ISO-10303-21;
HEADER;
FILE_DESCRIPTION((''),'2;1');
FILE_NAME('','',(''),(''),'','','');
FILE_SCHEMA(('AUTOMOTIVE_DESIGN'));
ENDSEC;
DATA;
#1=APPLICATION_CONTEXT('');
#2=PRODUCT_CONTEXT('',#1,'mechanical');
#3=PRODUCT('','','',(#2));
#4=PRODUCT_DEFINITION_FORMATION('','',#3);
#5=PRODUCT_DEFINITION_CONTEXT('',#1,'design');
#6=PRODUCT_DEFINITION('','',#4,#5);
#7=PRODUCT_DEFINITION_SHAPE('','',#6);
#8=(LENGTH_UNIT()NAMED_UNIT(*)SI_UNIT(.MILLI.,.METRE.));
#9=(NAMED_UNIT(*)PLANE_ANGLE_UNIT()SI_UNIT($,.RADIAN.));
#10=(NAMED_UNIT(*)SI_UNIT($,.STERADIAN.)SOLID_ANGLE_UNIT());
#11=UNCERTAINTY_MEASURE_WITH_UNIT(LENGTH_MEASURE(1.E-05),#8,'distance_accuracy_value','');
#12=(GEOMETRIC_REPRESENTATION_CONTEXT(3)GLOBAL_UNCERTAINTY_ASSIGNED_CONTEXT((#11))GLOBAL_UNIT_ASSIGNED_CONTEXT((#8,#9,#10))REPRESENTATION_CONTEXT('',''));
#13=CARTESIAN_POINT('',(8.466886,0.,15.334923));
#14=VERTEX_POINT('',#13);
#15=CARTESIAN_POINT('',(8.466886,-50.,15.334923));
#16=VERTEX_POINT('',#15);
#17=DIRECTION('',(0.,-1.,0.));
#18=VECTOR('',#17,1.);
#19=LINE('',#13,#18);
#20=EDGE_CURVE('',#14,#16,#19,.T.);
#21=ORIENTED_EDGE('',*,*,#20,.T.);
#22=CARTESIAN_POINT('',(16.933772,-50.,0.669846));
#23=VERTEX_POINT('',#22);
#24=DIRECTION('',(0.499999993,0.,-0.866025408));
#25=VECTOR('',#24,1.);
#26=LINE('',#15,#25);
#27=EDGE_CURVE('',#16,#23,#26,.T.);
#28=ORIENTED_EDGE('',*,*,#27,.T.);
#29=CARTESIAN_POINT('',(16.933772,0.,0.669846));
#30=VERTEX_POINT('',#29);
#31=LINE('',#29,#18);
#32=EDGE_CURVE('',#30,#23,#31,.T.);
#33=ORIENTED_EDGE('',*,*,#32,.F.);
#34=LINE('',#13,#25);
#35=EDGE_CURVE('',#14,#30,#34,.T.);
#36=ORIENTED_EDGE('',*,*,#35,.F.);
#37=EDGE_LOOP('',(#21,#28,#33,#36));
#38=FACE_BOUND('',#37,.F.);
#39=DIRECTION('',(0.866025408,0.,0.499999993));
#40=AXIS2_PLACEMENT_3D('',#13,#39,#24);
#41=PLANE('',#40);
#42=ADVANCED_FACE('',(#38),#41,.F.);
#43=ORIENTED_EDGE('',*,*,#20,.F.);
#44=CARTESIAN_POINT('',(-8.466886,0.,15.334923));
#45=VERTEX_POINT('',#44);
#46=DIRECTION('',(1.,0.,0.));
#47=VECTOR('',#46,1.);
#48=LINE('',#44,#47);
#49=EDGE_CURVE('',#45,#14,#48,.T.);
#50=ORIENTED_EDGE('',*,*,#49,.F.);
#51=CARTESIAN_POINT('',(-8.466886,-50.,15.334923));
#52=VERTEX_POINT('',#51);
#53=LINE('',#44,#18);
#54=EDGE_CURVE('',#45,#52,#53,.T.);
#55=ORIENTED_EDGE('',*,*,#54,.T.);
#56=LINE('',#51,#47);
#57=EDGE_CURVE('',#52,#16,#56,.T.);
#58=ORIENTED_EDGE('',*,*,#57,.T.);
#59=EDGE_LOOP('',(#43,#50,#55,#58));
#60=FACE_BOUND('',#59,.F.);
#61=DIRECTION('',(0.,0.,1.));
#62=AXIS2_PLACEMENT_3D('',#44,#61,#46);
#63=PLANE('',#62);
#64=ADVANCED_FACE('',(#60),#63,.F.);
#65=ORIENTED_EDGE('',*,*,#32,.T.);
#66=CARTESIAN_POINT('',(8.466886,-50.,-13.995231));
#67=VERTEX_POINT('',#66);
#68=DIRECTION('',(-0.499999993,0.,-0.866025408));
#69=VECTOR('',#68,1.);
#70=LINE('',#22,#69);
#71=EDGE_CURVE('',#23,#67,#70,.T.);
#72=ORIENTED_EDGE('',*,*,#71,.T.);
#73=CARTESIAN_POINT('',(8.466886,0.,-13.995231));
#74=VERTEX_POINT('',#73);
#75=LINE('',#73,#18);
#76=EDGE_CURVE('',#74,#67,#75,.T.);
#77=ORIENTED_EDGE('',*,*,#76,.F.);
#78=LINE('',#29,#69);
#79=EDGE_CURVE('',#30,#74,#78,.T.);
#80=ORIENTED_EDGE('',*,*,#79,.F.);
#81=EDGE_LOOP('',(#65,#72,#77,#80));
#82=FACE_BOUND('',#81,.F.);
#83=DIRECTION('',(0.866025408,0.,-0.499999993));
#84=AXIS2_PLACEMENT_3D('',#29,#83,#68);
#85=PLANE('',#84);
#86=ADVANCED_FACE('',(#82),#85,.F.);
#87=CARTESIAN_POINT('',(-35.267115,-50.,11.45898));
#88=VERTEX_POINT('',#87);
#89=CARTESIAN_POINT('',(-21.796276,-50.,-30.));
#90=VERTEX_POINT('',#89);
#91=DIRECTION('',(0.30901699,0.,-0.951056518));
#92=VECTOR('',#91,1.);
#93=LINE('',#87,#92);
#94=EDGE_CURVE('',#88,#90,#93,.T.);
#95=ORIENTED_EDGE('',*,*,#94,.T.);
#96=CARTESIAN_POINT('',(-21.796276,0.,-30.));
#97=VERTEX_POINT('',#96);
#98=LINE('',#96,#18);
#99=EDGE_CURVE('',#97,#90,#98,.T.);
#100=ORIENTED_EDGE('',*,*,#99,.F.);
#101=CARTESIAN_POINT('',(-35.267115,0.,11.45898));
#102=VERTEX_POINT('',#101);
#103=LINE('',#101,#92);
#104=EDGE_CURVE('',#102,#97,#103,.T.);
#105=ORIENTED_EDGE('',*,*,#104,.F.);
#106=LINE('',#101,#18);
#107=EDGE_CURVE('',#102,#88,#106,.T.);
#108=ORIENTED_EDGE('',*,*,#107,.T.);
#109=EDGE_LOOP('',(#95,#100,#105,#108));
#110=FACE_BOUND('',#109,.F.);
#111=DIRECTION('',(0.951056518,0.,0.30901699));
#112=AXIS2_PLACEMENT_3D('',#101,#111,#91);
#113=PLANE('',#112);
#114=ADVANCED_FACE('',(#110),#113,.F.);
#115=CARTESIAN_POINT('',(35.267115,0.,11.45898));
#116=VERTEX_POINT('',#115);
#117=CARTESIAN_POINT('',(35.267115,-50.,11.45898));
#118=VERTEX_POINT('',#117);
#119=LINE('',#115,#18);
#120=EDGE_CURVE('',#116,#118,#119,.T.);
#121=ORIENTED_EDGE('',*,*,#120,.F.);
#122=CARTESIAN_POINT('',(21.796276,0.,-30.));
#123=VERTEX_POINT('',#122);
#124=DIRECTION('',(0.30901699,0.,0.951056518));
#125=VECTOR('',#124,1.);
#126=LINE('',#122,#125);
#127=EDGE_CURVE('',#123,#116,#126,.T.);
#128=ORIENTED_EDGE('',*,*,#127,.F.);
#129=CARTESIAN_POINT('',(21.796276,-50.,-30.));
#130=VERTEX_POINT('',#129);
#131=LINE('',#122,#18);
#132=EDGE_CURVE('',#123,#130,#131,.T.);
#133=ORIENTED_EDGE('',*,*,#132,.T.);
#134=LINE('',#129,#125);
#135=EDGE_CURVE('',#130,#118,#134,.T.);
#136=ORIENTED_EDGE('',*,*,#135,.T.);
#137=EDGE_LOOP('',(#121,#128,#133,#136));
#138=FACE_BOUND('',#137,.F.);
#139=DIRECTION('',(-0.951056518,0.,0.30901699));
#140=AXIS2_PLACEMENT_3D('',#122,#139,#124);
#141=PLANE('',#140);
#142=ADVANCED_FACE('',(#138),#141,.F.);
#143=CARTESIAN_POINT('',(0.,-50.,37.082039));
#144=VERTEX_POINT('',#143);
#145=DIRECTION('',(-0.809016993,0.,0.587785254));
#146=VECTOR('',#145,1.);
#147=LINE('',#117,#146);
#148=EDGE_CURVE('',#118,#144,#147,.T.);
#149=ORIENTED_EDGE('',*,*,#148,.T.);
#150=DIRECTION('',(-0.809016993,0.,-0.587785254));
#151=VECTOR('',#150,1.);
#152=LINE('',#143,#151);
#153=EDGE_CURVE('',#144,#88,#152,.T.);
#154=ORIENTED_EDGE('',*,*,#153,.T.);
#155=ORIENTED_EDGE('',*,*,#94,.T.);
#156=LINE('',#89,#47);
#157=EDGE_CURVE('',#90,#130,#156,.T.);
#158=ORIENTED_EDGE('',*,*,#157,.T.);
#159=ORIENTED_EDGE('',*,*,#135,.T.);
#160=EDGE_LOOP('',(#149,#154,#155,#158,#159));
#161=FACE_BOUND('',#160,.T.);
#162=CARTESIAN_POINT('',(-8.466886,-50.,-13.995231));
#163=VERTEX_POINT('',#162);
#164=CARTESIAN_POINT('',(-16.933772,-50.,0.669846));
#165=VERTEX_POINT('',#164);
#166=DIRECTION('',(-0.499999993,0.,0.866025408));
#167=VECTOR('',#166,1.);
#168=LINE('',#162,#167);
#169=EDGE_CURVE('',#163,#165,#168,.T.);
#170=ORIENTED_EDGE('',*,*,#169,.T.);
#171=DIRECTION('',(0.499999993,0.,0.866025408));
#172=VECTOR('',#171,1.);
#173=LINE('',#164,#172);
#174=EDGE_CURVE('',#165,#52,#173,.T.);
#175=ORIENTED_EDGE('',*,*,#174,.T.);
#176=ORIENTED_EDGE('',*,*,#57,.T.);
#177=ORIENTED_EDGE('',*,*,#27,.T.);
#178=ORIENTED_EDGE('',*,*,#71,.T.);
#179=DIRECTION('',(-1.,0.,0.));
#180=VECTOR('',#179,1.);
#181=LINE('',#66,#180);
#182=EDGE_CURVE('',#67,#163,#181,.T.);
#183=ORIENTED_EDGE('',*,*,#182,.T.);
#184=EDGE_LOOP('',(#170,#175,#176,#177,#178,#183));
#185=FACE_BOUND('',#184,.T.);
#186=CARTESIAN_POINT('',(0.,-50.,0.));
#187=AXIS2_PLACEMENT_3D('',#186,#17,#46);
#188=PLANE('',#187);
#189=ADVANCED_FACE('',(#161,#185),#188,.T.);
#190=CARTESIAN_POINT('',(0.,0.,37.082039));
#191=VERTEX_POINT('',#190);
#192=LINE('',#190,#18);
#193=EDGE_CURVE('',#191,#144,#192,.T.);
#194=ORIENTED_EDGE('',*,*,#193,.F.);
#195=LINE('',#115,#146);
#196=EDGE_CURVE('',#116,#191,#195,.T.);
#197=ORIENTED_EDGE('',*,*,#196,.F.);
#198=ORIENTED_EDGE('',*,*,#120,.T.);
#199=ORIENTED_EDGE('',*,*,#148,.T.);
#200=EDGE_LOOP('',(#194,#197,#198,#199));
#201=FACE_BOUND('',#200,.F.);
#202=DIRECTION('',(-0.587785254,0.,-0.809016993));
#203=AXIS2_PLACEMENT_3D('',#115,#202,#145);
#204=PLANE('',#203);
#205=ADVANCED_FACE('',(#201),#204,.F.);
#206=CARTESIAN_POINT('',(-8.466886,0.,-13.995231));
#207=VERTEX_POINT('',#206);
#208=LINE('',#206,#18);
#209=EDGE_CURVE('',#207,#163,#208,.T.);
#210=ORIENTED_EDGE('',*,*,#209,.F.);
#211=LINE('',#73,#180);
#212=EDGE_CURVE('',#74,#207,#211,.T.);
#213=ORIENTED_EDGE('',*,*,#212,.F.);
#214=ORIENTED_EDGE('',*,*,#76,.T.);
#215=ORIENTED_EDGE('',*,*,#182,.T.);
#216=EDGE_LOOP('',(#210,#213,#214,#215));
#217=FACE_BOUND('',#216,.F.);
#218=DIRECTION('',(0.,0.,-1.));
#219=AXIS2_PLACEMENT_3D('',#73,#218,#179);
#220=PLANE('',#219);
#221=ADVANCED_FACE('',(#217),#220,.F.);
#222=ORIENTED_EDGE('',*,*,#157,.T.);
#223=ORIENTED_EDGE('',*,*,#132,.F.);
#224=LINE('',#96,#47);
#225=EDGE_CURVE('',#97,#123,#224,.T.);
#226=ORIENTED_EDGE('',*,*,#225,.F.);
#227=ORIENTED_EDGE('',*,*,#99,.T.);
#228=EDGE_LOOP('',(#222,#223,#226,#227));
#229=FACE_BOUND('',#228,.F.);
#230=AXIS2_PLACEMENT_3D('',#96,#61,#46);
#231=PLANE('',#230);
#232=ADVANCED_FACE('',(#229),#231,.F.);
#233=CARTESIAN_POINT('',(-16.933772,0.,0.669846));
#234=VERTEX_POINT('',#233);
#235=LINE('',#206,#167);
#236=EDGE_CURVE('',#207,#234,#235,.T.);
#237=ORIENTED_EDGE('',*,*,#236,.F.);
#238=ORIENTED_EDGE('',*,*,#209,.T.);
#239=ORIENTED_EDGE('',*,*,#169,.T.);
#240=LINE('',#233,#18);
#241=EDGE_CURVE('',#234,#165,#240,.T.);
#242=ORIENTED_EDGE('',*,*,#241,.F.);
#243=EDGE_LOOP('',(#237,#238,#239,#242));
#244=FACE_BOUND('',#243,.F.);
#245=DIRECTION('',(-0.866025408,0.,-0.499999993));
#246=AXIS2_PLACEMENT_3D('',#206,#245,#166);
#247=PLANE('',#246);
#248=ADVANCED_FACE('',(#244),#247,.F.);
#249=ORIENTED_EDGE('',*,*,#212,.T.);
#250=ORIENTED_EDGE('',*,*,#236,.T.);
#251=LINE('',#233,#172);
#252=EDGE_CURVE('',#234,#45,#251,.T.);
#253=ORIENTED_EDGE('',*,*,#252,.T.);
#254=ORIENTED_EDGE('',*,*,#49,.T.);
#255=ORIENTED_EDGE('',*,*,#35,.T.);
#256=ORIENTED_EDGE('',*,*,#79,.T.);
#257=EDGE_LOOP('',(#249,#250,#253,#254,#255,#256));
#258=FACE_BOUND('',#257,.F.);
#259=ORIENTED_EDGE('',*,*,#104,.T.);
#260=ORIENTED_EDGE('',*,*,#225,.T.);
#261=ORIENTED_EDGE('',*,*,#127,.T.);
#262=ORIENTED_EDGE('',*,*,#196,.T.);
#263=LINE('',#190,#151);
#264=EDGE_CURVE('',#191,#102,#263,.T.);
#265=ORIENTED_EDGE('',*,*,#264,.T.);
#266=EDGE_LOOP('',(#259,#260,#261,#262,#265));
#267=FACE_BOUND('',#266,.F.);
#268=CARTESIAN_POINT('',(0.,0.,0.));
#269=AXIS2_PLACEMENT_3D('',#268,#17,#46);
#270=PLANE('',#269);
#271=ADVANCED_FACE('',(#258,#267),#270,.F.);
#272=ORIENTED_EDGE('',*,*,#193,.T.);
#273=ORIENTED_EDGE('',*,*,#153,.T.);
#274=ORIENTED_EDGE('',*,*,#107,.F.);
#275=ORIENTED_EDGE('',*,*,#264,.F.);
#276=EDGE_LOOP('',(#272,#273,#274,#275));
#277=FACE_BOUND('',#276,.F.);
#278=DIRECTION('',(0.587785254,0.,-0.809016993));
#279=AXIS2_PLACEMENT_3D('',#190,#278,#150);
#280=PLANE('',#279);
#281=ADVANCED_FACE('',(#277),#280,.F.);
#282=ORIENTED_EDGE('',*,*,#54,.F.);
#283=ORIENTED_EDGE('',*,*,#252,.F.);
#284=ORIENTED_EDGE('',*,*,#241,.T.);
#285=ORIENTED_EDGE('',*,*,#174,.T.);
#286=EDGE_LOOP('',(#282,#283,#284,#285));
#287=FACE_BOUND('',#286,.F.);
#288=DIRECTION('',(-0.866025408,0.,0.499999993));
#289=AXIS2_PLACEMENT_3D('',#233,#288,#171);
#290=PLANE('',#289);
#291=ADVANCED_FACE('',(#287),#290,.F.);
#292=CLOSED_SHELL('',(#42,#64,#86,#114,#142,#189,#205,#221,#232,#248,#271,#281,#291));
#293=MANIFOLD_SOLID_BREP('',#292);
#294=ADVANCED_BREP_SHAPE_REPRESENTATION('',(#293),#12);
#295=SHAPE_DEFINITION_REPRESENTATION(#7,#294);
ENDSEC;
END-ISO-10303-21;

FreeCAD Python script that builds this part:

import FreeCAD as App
import Part
import Sketcher

V = App.Vector
Q = App.Units.Quantity

doc = App.newDocument("Part")
body = doc.addObject("PartDesign::Body", "Body")

# Sketch on XZ plane
sketch1 = body.newObject("Sketcher::SketchObject", "Sketch")
sketch1.AttachmentSupport = (doc.getObject("XZ_Plane"), [""])
sketch1.MapMode = "FlatFace"
sketch1.addGeometry([
    Part.LineSegment(V(-35, 11, 0), V(-22, -30, 0)),  # 0
    Part.LineSegment(V(-22, -30, 0), V(22, -30, 0)),  # 1
    Part.LineSegment(V(22, -30, 0), V(35, 11, 0)),  # 2
    Part.LineSegment(V(35, 11, 0), V(0, 37, 0)),  # 3
    Part.LineSegment(V(0, 37, 0), V(-35, 11, 0)),  # 4
    Part.LineSegment(V(-8, -14, 0), V(-17, 1, 0)),  # 5
    Part.LineSegment(V(-17, 1, 0), V(-8, 15, 0)),  # 6
    Part.LineSegment(V(-8, 15, 0), V(8, 15, 0)),  # 7
    Part.LineSegment(V(8, 15, 0), V(17, 1, 0)),  # 8
    Part.LineSegment(V(17, 1, 0), V(8, -14, 0)),  # 9
    Part.LineSegment(V(8, -14, 0), V(-8, -14, 0)),  # 10
], False)
sketch1.addConstraint([
    Sketcher.Constraint("Coincident", 0, 2, 1, 1),
    Sketcher.Constraint("Coincident", 1, 2, 2, 1),
    Sketcher.Constraint("Coincident", 2, 2, 3, 1),
    Sketcher.Constraint("Coincident", 3, 2, 4, 1),
    Sketcher.Constraint("Coincident", 4, 2, 0, 1),
    Sketcher.Constraint("Coincident", 5, 2, 6, 1),
    Sketcher.Constraint("Coincident", 6, 2, 7, 1),
    Sketcher.Constraint("Coincident", 7, 2, 8, 1),
    Sketcher.Constraint("Coincident", 8, 2, 9, 1),
    Sketcher.Constraint("Coincident", 9, 2, 10, 1),
    Sketcher.Constraint("Coincident", 10, 2, 5, 1),
    Sketcher.Constraint("Horizontal", 1),
    Sketcher.Constraint("Horizontal", 7),
    Sketcher.Constraint("Horizontal", 10),
    Sketcher.Constraint("Symmetric", 2, 2, 4, 2, -2),
    Sketcher.Constraint("Symmetric", 5, 2, 8, 2, -2),
    Sketcher.Constraint("PointOnObject", 3, 2, -2),
    Sketcher.Constraint("Parallel", 5, 8),
    Sketcher.Constraint("Parallel", 6, 9),
    Sketcher.Constraint("Vertical", 7, 2, 9, 2),
    Sketcher.Constraint("Vertical", 6, 2, 10, 2),
    Sketcher.Constraint("Equal", 0, 2),
    Sketcher.Constraint("Equal", 2, 3),
    Sketcher.Constraint("Angle", 0, Q("-72 deg")),
    Sketcher.Constraint("Angle", 3, Q("144 deg")),
    Sketcher.Constraint("Angle", 5, Q("120 deg")),
    Sketcher.Constraint("DistanceY", 0, 2, -1, 1, Q("30 mm")),
    Sketcher.Constraint("DistanceX", 6, 2, 2, 2, Q("43.734001 mm")),
    Sketcher.Constraint("DistanceX", 1, 1, 1, 2, Q("43.592552 mm")),
    Sketcher.Constraint("DistanceY", 9, 2, -1, 1, Q("13.995231 mm")),
    Sketcher.Constraint("DistanceX", 5, 2, 7, 2, Q("25.400658 mm")),
])
pad1 = body.newObject("PartDesign::Pad", "Pad")
pad1.Profile = sketch1
pad1.Length = 50

doc.recompute()
